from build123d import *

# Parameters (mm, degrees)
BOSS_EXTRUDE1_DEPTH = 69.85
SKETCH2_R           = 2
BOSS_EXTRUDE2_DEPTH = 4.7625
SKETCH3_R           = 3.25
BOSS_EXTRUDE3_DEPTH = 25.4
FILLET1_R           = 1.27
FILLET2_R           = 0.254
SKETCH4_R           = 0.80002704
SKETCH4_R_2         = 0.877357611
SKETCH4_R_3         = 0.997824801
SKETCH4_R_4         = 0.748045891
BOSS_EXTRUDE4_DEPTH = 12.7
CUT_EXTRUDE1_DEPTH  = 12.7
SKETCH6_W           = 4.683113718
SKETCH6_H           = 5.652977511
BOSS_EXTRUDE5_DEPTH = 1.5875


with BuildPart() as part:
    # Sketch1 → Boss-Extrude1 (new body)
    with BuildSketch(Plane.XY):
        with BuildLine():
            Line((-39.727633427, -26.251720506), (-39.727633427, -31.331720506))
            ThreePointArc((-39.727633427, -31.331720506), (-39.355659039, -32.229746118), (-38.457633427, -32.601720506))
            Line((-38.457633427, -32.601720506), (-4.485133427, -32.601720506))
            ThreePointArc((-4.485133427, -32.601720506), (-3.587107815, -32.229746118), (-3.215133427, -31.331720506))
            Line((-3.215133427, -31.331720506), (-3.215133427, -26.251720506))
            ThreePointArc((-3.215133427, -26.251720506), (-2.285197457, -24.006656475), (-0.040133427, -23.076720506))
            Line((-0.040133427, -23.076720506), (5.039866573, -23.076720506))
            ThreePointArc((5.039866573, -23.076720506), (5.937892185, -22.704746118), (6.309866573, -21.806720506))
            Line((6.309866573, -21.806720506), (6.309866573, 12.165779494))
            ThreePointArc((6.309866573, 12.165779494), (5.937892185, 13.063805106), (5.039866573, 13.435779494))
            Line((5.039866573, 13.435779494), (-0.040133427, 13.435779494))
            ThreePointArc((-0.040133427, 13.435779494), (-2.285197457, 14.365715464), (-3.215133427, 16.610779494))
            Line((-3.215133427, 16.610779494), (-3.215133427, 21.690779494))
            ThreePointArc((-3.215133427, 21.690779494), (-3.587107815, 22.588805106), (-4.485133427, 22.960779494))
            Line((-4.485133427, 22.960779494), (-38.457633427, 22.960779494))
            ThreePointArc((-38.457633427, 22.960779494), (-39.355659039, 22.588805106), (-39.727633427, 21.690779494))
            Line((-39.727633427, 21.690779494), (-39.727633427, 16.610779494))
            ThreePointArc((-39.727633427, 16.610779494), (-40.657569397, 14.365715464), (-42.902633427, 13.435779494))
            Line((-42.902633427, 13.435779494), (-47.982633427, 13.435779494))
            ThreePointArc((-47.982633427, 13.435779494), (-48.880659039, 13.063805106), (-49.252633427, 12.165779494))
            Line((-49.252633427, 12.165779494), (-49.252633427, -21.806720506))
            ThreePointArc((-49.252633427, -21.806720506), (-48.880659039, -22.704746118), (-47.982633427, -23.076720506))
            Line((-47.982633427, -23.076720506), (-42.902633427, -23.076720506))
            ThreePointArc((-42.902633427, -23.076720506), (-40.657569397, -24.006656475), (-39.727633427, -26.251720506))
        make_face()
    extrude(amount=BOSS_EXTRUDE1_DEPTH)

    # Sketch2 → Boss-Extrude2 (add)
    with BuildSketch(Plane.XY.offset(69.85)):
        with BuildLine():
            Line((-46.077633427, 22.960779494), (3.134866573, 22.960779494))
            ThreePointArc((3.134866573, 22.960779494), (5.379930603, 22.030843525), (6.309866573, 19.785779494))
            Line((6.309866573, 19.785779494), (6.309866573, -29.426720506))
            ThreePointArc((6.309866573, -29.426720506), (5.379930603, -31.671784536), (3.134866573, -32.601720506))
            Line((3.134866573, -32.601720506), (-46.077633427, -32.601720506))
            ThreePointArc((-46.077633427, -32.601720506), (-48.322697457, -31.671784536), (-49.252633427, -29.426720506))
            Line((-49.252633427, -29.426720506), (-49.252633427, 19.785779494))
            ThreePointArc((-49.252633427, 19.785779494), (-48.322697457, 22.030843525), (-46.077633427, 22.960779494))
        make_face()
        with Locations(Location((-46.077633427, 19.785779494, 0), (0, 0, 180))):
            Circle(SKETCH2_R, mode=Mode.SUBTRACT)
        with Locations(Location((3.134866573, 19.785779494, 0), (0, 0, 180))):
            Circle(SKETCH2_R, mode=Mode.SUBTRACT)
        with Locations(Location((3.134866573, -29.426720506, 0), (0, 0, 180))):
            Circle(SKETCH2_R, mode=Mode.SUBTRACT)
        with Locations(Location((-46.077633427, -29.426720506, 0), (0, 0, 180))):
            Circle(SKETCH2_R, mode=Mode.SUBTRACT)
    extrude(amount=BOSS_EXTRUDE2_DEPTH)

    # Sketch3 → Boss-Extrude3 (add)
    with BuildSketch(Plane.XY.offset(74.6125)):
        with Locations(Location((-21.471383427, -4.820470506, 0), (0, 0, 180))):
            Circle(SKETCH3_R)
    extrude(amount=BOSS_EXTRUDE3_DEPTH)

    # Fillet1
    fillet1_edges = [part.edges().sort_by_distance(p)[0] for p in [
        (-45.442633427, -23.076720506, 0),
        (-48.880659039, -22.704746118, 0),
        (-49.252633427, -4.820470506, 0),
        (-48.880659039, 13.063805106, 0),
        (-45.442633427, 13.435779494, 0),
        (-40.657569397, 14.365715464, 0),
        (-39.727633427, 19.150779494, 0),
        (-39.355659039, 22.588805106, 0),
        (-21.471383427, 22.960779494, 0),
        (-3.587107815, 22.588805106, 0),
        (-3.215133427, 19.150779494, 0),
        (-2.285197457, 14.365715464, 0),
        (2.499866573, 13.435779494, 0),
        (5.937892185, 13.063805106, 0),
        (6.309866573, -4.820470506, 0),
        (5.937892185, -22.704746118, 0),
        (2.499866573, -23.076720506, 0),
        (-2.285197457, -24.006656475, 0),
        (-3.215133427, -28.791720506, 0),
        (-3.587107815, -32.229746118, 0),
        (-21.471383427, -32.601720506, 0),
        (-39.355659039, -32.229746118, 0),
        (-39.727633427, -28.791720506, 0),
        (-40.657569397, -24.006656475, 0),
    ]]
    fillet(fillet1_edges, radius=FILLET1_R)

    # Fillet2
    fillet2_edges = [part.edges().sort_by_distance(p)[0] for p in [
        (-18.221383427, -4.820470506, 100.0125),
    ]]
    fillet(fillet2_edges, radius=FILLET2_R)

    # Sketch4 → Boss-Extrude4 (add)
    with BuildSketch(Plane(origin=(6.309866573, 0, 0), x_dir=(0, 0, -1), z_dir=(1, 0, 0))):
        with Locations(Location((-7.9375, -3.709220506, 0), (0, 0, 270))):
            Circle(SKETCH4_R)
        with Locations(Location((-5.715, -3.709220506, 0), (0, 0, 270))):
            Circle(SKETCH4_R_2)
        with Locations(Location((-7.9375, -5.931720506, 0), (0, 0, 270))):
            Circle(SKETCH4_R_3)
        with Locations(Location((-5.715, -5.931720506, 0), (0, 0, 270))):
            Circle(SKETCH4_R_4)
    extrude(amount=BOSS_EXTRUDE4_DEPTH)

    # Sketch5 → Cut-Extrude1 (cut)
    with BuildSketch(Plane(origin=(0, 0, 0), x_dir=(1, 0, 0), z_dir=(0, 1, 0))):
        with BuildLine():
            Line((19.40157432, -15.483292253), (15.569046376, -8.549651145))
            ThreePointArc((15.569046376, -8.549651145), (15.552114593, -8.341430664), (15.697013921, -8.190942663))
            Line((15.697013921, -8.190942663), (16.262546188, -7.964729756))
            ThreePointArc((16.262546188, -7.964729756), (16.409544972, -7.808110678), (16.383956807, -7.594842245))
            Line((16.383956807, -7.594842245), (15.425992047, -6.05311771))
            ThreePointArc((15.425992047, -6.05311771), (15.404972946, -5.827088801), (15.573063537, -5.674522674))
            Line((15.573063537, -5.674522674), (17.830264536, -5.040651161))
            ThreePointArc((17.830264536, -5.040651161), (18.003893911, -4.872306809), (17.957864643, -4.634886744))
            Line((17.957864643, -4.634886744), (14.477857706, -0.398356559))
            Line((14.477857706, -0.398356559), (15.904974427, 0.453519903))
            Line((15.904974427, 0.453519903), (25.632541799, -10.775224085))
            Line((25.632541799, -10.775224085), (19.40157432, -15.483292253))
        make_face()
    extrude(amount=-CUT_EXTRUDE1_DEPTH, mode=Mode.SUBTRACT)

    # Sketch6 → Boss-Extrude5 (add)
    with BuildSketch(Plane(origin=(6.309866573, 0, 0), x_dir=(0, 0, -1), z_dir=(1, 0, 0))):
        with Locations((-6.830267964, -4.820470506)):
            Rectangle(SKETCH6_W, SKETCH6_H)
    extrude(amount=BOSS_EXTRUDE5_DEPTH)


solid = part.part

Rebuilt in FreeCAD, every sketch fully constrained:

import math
import FreeCAD as App
import Part
import Sketcher

V = App.Vector
Q = App.Units.Quantity


def edges_at(feature, points):
    """Names of the edges that pass closest to the given points."""
    edges = feature.Shape.Edges
    near = lambda p: min(range(len(edges)), key=lambda i: edges[i].distToShape(Part.Vertex(*p))[0])
    return sorted({f"Edge{near(p) + 1}" for p in points})


def add_polygon(sketch, points):
    """Adds a closed chain of lines whose ends are joined by coincident constraints."""
    first, n = sketch.GeometryCount, len(points)
    for a, b in zip(points, points[1:] + points[:1]):
        sketch.addGeometry(Part.LineSegment(App.Vector(*a, 0), App.Vector(*b, 0)), False)
    for i in range(n):
        sketch.addConstraint(Sketcher.Constraint("Coincident", first + i, 2, first + (i + 1) % n, 1))

doc = App.newDocument("Part")
params = doc.addObject("Spreadsheet::Sheet", "Params")
for row, (alias, value) in enumerate([
    ("sketch1_radius", "0.05 in"),
    ("sketch1_width", "0.2 in"),
    ("sketch1_radius2", "0.125 in"),
    ("pad1_length", "2.75 in"),
    ("sketch2_radius", "0.125 in"),
    ("sketch2_width", "1.9375 in"),
    ("pad2_length", "0.1875 in"),
    ("pad3_length", "1 in"),
    ("fillet_radius", "0.05 in"),
    ("fillet2_radius", "0.01 in"),
    ("pad4_length", "0.5 in"),
    ("sketch5_radius", "0.01 in"),
    ("sketch5_radius2", "0.01 in"),
    ("sketch5_radius3", "0.01 in"),
    ("sketch5_radius4", "0.01 in"),
    ("pocket1_length", "0.5 in"),
    ("pad5_length", "0.0625 in"),
], start=1):
    params.set(f"A{row}", alias)
    params.set(f"B{row}", "=" + value)
    params.setAlias(f"B{row}", alias)

body = doc.addObject("PartDesign::Body", "Body")

sketch1 = body.newObject("Sketcher::SketchObject", "Sketch")
sketch1.AttachmentSupport = (doc.getObject("XY_Plane"), [""])
sketch1.MapMode = "FlatFace"
sketch1.addGeometry(Part.LineSegment(V(-39.7, -26.3, 0), V(-39.7, -31.3, 0)), False)
sketch1.addGeometry(Part.ArcOfCircle(Part.Circle(V(-38.5, -31.3, 0), V(0, 0, 1), 1.3), math.radians(180), math.radians(270)), False)
sketch1.addGeometry(Part.LineSegment(V(-38.5, -32.6, 0), V(-4.5, -32.6, 0)), False)
sketch1.addGeometry(Part.ArcOfCircle(Part.Circle(V(-4.5, -31.3, 0), V(0, 0, 1), 1.3), math.radians(-90), math.radians(0)), False)
sketch1.addGeometry(Part.LineSegment(V(-3.2, -31.3, 0), V(-3.2, -26.3, 0)), False)
sketch1.addGeometry(Part.ArcOfCircle(Part.Circle(V(0, -26.3, 0), V(0, 0, 1), 3.2), math.radians(90), math.radians(180)), False)
sketch1.addGeometry(Part.LineSegment(V(0, -23.1, 0), V(5, -23.1, 0)), False)
sketch1.addGeometry(Part.ArcOfCircle(Part.Circle(V(5, -21.8, 0), V(0, 0, 1), 1.3), math.radians(-90), math.radians(0)), False)
sketch1.addGeometry(Part.LineSegment(V(6.3, -21.8, 0), V(6.3, 12.2, 0)), False)
sketch1.addGeometry(Part.ArcOfCircle(Part.Circle(V(5, 12.2, 0), V(0, 0, 1), 1.3), math.radians(0), math.radians(90)), False)
sketch1.addGeometry(Part.LineSegment(V(5, 13.4, 0), V(0, 13.4, 0)), False)
sketch1.addGeometry(Part.ArcOfCircle(Part.Circle(V(0, 16.6, 0), V(0, 0, 1), 3.2), math.radians(-180), math.radians(-90)), False)
sketch1.addGeometry(Part.LineSegment(V(-3.2, 16.6, 0), V(-3.2, 21.7, 0)), False)
sketch1.addGeometry(Part.ArcOfCircle(Part.Circle(V(-4.5, 21.7, 0), V(0, 0, 1), 1.3), math.radians(0), math.radians(90)), False)
sketch1.addGeometry(Part.LineSegment(V(-4.5, 23, 0), V(-38.5, 23, 0)), False)
sketch1.addGeometry(Part.ArcOfCircle(Part.Circle(V(-38.5, 21.7, 0), V(0, 0, 1), 1.3), math.radians(90), math.radians(180)), False)
sketch1.addGeometry(Part.LineSegment(V(-39.7, 21.7, 0), V(-39.7, 16.6, 0)), False)
sketch1.addGeometry(Part.ArcOfCircle(Part.Circle(V(-42.9, 16.6, 0), V(0, 0, 1), 3.2), math.radians(-90), math.radians(0)), False)
sketch1.addGeometry(Part.LineSegment(V(-42.9, 13.4, 0), V(-48, 13.4, 0)), False)
sketch1.addGeometry(Part.ArcOfCircle(Part.Circle(V(-48, 12.2, 0), V(0, 0, 1), 1.3), math.radians(90), math.radians(180)), False)
sketch1.addGeometry(Part.LineSegment(V(-49.3, 12.2, 0), V(-49.3, -21.8, 0)), False)
sketch1.addGeometry(Part.ArcOfCircle(Part.Circle(V(-48, -21.8, 0), V(0, 0, 1), 1.3), math.radians(180), math.radians(270)), False)
sketch1.addGeometry(Part.LineSegment(V(-48, -23.1, 0), V(-42.9, -23.1, 0)), False)
sketch1.addGeometry(Part.ArcOfCircle(Part.Circle(V(-42.9, -26.3, 0), V(0, 0, 1), 3.2), math.radians(0), math.radians(90)), False)
sketch1.addConstraint(Sketcher.Constraint("Tangent", 0, 2, 1, 1))
sketch1.addConstraint(Sketcher.Constraint("Tangent", 1, 2, 2, 1))
sketch1.addConstraint(Sketcher.Constraint("Tangent", 2, 2, 3, 1))
sketch1.addConstraint(Sketcher.Constraint("Tangent", 3, 2, 4, 1))
sketch1.addConstraint(Sketcher.Constraint("Tangent", 4, 2, 5, 2))
sketch1.addConstraint(Sketcher.Constraint("Tangent", 5, 1, 6, 1))
sketch1.addConstraint(Sketcher.Constraint("Tangent", 6, 2, 7, 1))
sketch1.addConstraint(Sketcher.Constraint("Tangent", 7, 2, 8, 1))
sketch1.addConstraint(Sketcher.Constraint("Tangent", 8, 2, 9, 1))
sketch1.addConstraint(Sketcher.Constraint("Tangent", 9, 2, 10, 1))
sketch1.addConstraint(Sketcher.Constraint("Tangent", 10, 2, 11, 2))
sketch1.addConstraint(Sketcher.Constraint("Tangent", 11, 1, 12, 1))
sketch1.addConstraint(Sketcher.Constraint("Tangent", 12, 2, 13, 1))
sketch1.addConstraint(Sketcher.Constraint("Tangent", 13, 2, 14, 1))
sketch1.addConstraint(Sketcher.Constraint("Tangent", 14, 2, 15, 1))
sketch1.addConstraint(Sketcher.Constraint("Tangent", 15, 2, 16, 1))
sketch1.addConstraint(Sketcher.Constraint("Tangent", 16, 2, 17, 2))
sketch1.addConstraint(Sketcher.Constraint("Tangent", 17, 1, 18, 1))
sketch1.addConstraint(Sketcher.Constraint("Tangent", 18, 2, 19, 1))
sketch1.addConstraint(Sketcher.Constraint("Tangent", 19, 2, 20, 1))
sketch1.addConstraint(Sketcher.Constraint("Tangent", 20, 2, 21, 1))
sketch1.addConstraint(Sketcher.Constraint("Tangent", 21, 2, 22, 1))
sketch1.addConstraint(Sketcher.Constraint("Tangent", 22, 2, 23, 2))
sketch1.addConstraint(Sketcher.Constraint("Tangent", 23, 1, 0, 1))
sketch1.addConstraint(Sketcher.Constraint("Vertical", 0))
sketch1.addConstraint(Sketcher.Constraint("Horizontal", 2))
sketch1.addConstraint(Sketcher.Constraint("Vertical", 4))
sketch1.addConstraint(Sketcher.Constraint("Horizontal", 6))
sketch1.addConstraint(Sketcher.Constraint("Vertical", 8))
sketch1.addConstraint(Sketcher.Constraint("Horizontal", 10))
sketch1.addConstraint(Sketcher.Constraint("Vertical", 12))
sketch1.addConstraint(Sketcher.Constraint("Horizontal", 14))
sketch1.addConstraint(Sketcher.Constraint("Vertical", 16))
sketch1.addConstraint(Sketcher.Constraint("Horizontal", 18))
sketch1.addConstraint(Sketcher.Constraint("Vertical", 20))
sketch1.addConstraint(Sketcher.Constraint("Horizontal", 22))
sketch1.addConstraint(Sketcher.Constraint("Equal", 1, 3))
sketch1.addConstraint(Sketcher.Constraint("Equal", 3, 7))
sketch1.addConstraint(Sketcher.Constraint("Equal", 7, 9))
sketch1.addConstraint(Sketcher.Constraint("Equal", 5, 11))
sketch1.addConstraint(Sketcher.Constraint("Equal", 9, 13))
sketch1.addConstraint(Sketcher.Constraint("Equal", 13, 15))
sketch1.addConstraint(Sketcher.Constraint("Equal", 11, 17))
sketch1.addConstraint(Sketcher.Constraint("Equal", 15, 19))
sketch1.addConstraint(Sketcher.Constraint("Equal", 19, 21))
sketch1.addConstraint(Sketcher.Constraint("Equal", 17, 23))
sketch1.addConstraint(Sketcher.Constraint("Horizontal", 11, 3, 17, 3))
sketch1.addConstraint(Sketcher.Constraint("Horizontal", 7, 3, 21, 3))
sketch1.addConstraint(Sketcher.Constraint("Vertical", 5, 3, 11, 3))
sketch1.addConstraint(Sketcher.Constraint("Vertical", 1, 3, 15, 3))
sketch1.addConstraint(Sketcher.Constraint("Equal", 10, 18))
sketch1.addConstraint(Sketcher.Constraint("Equal", 22, 0))
sketch1.addConstraint(Sketcher.Constraint("Equal", 14, 8))
sketch1.addConstraint(Sketcher.Constraint("Equal", 4, 12))
sketch1.addConstraint(Sketcher.Constraint("Radius", 1, Q("0.05 in")))
sketch1.addConstraint(Sketcher.Constraint("DistanceX", 6, 1, 6, 2, Q("0.2 in")))
sketch1.addConstraint(Sketcher.Constraint("Radius", 5, Q("0.125 in")))
sketch1.addConstraint(Sketcher.Constraint("DistanceX", 2, 1, 2, 2, Q("1.3375 in")))
sketch1.addConstraint(Sketcher.Constraint("DistanceY", 1, 3, -1, 1, Q("31.331721 mm")))
sketch1.addConstraint(Sketcher.Constraint("DistanceX", 1, 3, -1, 1, Q("38.457633 mm")))
sketch1.setExpression("Constraints[54]", "Params.sketch1_radius")
sketch1.setExpression("Constraints[55]", "Params.sketch1_width")
sketch1.setExpression("Constraints[56]", "Params.sketch1_radius2")
pad1 = body.newObject("PartDesign::Pad", "Pad")
pad1.Profile = sketch1
pad1.setExpression("Length", "Params.pad1_length")

sketch2 = body.newObject("Sketcher::SketchObject", "Sketch001")
sketch2.AttachmentSupport = (doc.getObject("XY_Plane"), [""])
sketch2.MapMode = "FlatFace"
sketch2.AttachmentOffset = App.Placement(V(0, 0, 2.75 * 25.4), App.Rotation())
sketch2.addGeometry(Part.LineSegment(V(3.1, 23, 0), V(-46.1, 23, 0)), False)
sketch2.addGeometry(Part.ArcOfCircle(Part.Circle(V(-46.1, 19.8, 0), V(0, 0, 1), 3.2), math.radians(90), math.radians(180)), False)
sketch2.addGeometry(Part.LineSegment(V(-49.3, 19.8, 0), V(-49.3, -29.4, 0)), False)
sketch2.addGeometry(Part.ArcOfCircle(Part.Circle(V(-46.1, -29.4, 0), V(0, 0, 1), 3.2), math.radians(-180), math.radians(-90)), False)
sketch2.addGeometry(Part.LineSegment(V(-46.1, -32.6, 0), V(3.1, -32.6, 0)), False)
sketch2.addGeometry(Part.ArcOfCircle(Part.Circle(V(3.1, -29.4, 0), V(0, 0, 1), 3.2), math.radians(-90), math.radians(0)), False)
sketch2.addGeometry(Part.LineSegment(V(6.3, -29.4, 0), V(6.3, 19.8, 0)), False)
sketch2.addGeometry(Part.ArcOfCircle(Part.Circle(V(3.1, 19.8, 0), V(0, 0, 1), 3.2), math.radians(0), math.radians(90)), False)
sketch2.addGeometry(Part.Circle(V(3.1, -29.4, 0), V(0, 0, 1), 2), False)
sketch2.addGeometry(Part.Circle(V(-46.1, -29.4, 0), V(0, 0, 1), 2), False)
sketch2.addGeometry(Part.Circle(V(3.1, 19.8, 0), V(0, 0, 1), 2), False)
sketch2.addGeometry(Part.Circle(V(-46.1, 19.8, 0), V(0, 0, 1), 2), False)
sketch2.addConstraint(Sketcher.Constraint("Tangent", 0, 2, 1, 1))
sketch2.addConstraint(Sketcher.Constraint("Tangent", 1, 2, 2, 1))
sketch2.addConstraint(Sketcher.Constraint("Tangent", 2, 2, 3, 1))
sketch2.addConstraint(Sketcher.Constraint("Tangent", 3, 2, 4, 1))
sketch2.addConstraint(Sketcher.Constraint("Tangent", 4, 2, 5, 1))
sketch2.addConstraint(Sketcher.Constraint("Tangent", 5, 2, 6, 1))
sketch2.addConstraint(Sketcher.Constraint("Tangent", 6, 2, 7, 1))
sketch2.addConstraint(Sketcher.Constraint("Tangent", 7, 2, 0, 1))
sketch2.addConstraint(Sketcher.Constraint("Horizontal", 0))
sketch2.addConstraint(Sketcher.Constraint("Vertical", 2))
sketch2.addConstraint(Sketcher.Constraint("Horizontal", 4))
sketch2.addConstraint(Sketcher.Constraint("Vertical", 6))
sketch2.addConstraint(Sketcher.Constraint("Coincident", 8, 3, 5, 3))
sketch2.addConstraint(Sketcher.Constraint("Coincident", 9, 3, 3, 3))
sketch2.addConstraint(Sketcher.Constraint("Coincident", 10, 3, 7, 3))
sketch2.addConstraint(Sketcher.Constraint("Coincident", 11, 3, 1, 3))
sketch2.addConstraint(Sketcher.Constraint("Equal", 1, 3))
sketch2.addConstraint(Sketcher.Constraint("Equal", 3, 5))
sketch2.addConstraint(Sketcher.Constraint("Equal", 5, 7))
sketch2.addConstraint(Sketcher.Constraint("Equal", 8, 9))
sketch2.addConstraint(Sketcher.Constraint("Equal", 9, 10))
sketch2.addConstraint(Sketcher.Constraint("Equal", 10, 11))
sketch2.addConstraint(Sketcher.Constraint("Equal", 4, 2))
sketch2.addConstraint(Sketcher.Constraint("Radius", 1, Q("0.125 in")))
sketch2.addConstraint(Sketcher.Constraint("Diameter", 8, Q("4 mm")))
sketch2.addConstraint(Sketcher.Constraint("DistanceX", 0, 2, 0, 1, Q("1.9375 in")))
sketch2.addConstraint(Sketcher.Constraint("DistanceY", -1, 1, 1, 3, Q("19.785779 mm")))
sketch2.addConstraint(Sketcher.Constraint("DistanceX", 1, 3, -1, 1, Q("46.077633 mm")))
sketch2.setExpression("Constraints[23]", "Params.sketch2_radius")
sketch2.setExpression("Constraints[25]", "Params.sketch2_width")
pad2 = body.newObject("PartDesign::Pad", "Pad001")
pad2.Profile = sketch2
pad2.setExpression("Length", "Params.pad2_length")

sketch3 = body.newObject("Sketcher::SketchObject", "Sketch002")
sketch3.AttachmentSupport = (doc.getObject("XY_Plane"), [""])
sketch3.MapMode = "FlatFace"
sketch3.AttachmentOffset = App.Placement(V(0, 0, 2.9375 * 25.4), App.Rotation())
sketch3.addGeometry(Part.Circle(V(-21.5, -4.8, 0), V(0, 0, 1), 3.2), False)
sketch3.addConstraint(Sketcher.Constraint("Diameter", 0, Q("6.5 mm")))
sketch3.addConstraint(Sketcher.Constraint("DistanceY", 0, 3, -1, 1, Q("4.820471 mm")))
sketch3.addConstraint(Sketcher.Constraint("DistanceX", 0, 3, -1, 1, Q("21.471383 mm")))
pad3 = body.newObject("PartDesign::Pad", "Pad002")
pad3.Profile = sketch3
pad3.setExpression("Length", "Params.pad3_length")
doc.recompute()

fillet = body.newObject("PartDesign::Fillet", "Fillet")
fillet.Base = (pad3, edges_at(pad3, [
    (-45.443, -23.077, 0),
    (-48.881, -22.705, 0),
    (-49.253, -4.82, 0),
    (-48.881, 13.064, 0),
    (-45.443, 13.436, 0),
    (-40.658, 14.366, 0),
    (-39.728, 19.151, 0),
    (-39.356, 22.589, 0),
    (-21.471, 22.961, 0),
    (-3.587, 22.589, 0),
    (-3.215, 19.151, 0),
    (-2.285, 14.366, 0),
    (2.5, 13.436, 0),
    (5.938, 13.064, 0),
    (6.31, -4.82, 0),
    (5.938, -22.705, 0),
    (2.5, -23.077, 0),
    (-2.285, -24.007, 0),
    (-3.215, -28.792, 0),
    (-3.587, -32.23, 0),
    (-21.471, -32.602, 0),
    (-39.356, -32.23, 0),
    (-39.728, -28.792, 0),
    (-40.658, -24.007, 0),
]))
fillet.setExpression("Radius", "Params.fillet_radius")
doc.recompute()

fillet2 = body.newObject("PartDesign::Fillet", "Fillet001")
fillet2.Base = (fillet, edges_at(fillet, [(-18.221, -4.82, 100.013)]))
fillet2.setExpression("Radius", "Params.fillet2_radius")

sketch4 = body.newObject("Sketcher::SketchObject", "Sketch003")
sketch4.AttachmentSupport = (doc.getObject("YZ_Plane"), [""])
sketch4.MapMode = "FlatFace"
sketch4.AttachmentOffset = App.Placement(V(0, 0, 6.309867), App.Rotation())
sketch4.addGeometry(Part.Circle(V(-3.7, 7.9, 0), V(0, 0, 1), 0.8), False)
sketch4.addGeometry(Part.Circle(V(-3.7, 5.7, 0), V(0, 0, 1), 0.9), False)
sketch4.addGeometry(Part.Circle(V(-5.9, 7.9, 0), V(0, 0, 1), 1), False)
sketch4.addGeometry(Part.Circle(V(-5.9, 5.7, 0), V(0, 0, 1), 0.7), False)
sketch4.addConstraint(Sketcher.Constraint("Horizontal", 0, 3, 2, 3))
sketch4.addConstraint(Sketcher.Constraint("Horizontal", 1, 3, 3, 3))
sketch4.addConstraint(Sketcher.Constraint("Vertical", 0, 3, 1, 3))
sketch4.addConstraint(Sketcher.Constraint("Vertical", 2, 3, 3, 3))
sketch4.addConstraint(Sketcher.Constraint("Diameter", 2, Q("1.99565 mm")))
sketch4.addConstraint(Sketcher.Constraint("Diameter", 3, Q("1.496092 mm")))
sketch4.addConstraint(Sketcher.Constraint("DistanceY", -1, 1, 0, 3, Q("0.3125 in")))
sketch4.addConstraint(Sketcher.Constraint("DistanceY", -1, 1, 1, 3, Q("0.225 in")))
sketch4.addConstraint(Sketcher.Constraint("Diameter", 0, Q("1.600054 mm")))
sketch4.addConstraint(Sketcher.Constraint("Diameter", 1, Q("1.754715 mm")))
sketch4.addConstraint(Sketcher.Constraint("DistanceX", 2, 3, 0, 3, Q("0.0875 in")))
sketch4.addConstraint(Sketcher.Constraint("DistanceX", 0, 3, -1, 1, Q("3.709221 mm")))
pad4 = body.newObject("PartDesign::Pad", "Pad003")
pad4.Profile = sketch4
pad4.setExpression("Length", "Params.pad4_length")

sketch5 = body.newObject("Sketcher::SketchObject", "Sketch004")
sketch5.AttachmentSupport = (doc.getObject("XZ_Plane"), [""])
sketch5.MapMode = "FlatFace"
sketch5.addGeometry(Part.LineSegment(V(15.569046, 8.549651, 0), V(19.401574, 15.483292, 0)), False)
sketch5.addGeometry(Part.LineSegment(V(19.401574, 15.483292, 0), V(25.632542, 10.775224, 0)), False)
sketch5.addGeometry(Part.LineSegment(V(25.632542, 10.775224, 0), V(15.904974, -0.45352, 0)), False)
sketch5.addGeometry(Part.LineSegment(V(15.904974, -0.45352, 0), V(14.477858, 0.398357, 0)), False)
sketch5.addGeometry(Part.LineSegment(V(14.477858, 0.398357, 0), V(17.957865, 4.634887, 0)), False)
sketch5.addGeometry(Part.ArcOfCircle(Part.Circle(V(17.761592, 4.796111, 0), V(0, 0, 1), 0.254), math.radians(-39.400661), math.radians(74.314094)), False)
sketch5.addGeometry(Part.LineSegment(V(17.830265, 5.040651, 0), V(15.573064, 5.674523, 0)), False)
sketch5.addGeometry(Part.ArcOfCircle(Part.Circle(V(15.641736, 5.919063, 0), V(0, 0, 1), 0.254), math.radians(148.144868), math.radians(254.314094)), False)
sketch5.addGeometry(Part.LineSegment(V(15.425992, 6.053118, 0), V(16.383957, 7.594842, 0)), False)
sketch5.addGeometry(Part.ArcOfCircle(Part.Circle(V(16.168213, 7.728897, 0), V(0, 0, 1), 0.254), math.radians(-31.855132), math.radians(68.19859)), False)
sketch5.addGeometry(Part.LineSegment(V(16.262546, 7.96473, 0), V(15.697014, 8.190943, 0)), False)
sketch5.addGeometry(Part.ArcOfCircle(Part.Circle(V(15.791347, 8.426776, 0), V(0, 0, 1), 0.254), math.radians(151.068643), math.radians(248.198591)), False)
sketch5.addConstraint(Sketcher.Constraint("Coincident", 0, 2, 1, 1))
sketch5.addConstraint(Sketcher.Constraint("Coincident", 1, 2, 2, 1))
sketch5.addConstraint(Sketcher.Constraint("Coincident", 2, 2, 3, 1))
sketch5.addConstraint(Sketcher.Constraint("Coincident", 3, 2, 4, 1))
sketch5.addConstraint(Sketcher.Constraint("Coincident", 4, 2, 5, 1))
sketch5.addConstraint(Sketcher.Constraint("Coincident", 5, 2, 6, 1))
sketch5.addConstraint(Sketcher.Constraint("Coincident", 6, 2, 7, 2))
sketch5.addConstraint(Sketcher.Constraint("Coincident", 7, 1, 8, 1))
sketch5.addConstraint(Sketcher.Constraint("Coincident", 8, 2, 9, 1))
sketch5.addConstraint(Sketcher.Constraint("Coincident", 9, 2, 10, 1))
sketch5.addConstraint(Sketcher.Constraint("Coincident", 10, 2, 11, 2))
sketch5.addConstraint(Sketcher.Constraint("Coincident", 11, 1, 0, 1))
sketch5.addConstraint(Sketcher.Constraint("Radius", 5, Q("0.01 in")))
sketch5.addConstraint(Sketcher.Constraint("Radius", 7, Q("0.01 in")))
sketch5.addConstraint(Sketcher.Constraint("Radius", 9, Q("0.01 in")))
sketch5.addConstraint(Sketcher.Constraint("Radius", 11, Q("0.01 in")))
sketch5.addConstraint(Sketcher.Constraint("DistanceX", 5, 2, 4, 2, Q("0.1276 mm")))
sketch5.addConstraint(Sketcher.Constraint("DistanceX", 6, 2, 5, 2, Q("2.257201 mm")))
sketch5.addConstraint(Sketcher.Constraint("DistanceX", 11, 3, 9, 2, Q("0.471199 mm")))
sketch5.addConstraint(Sketcher.Constraint("DistanceX", 10, 2, 9, 3, Q("0.471199 mm")))
sketch5.addConstraint(Sketcher.Constraint("DistanceY", 8, 2, 10, 2, Q("0.5961 mm")))
sketch5.addConstraint(Sketcher.Constraint("DistanceX", 11, 1, 11, 3, Q("0.222301 mm")))
sketch5.addConstraint(Sketcher.Constraint("Distance", 0, Q("7.922351 mm")))
sketch5.addConstraint(Sketcher.Constraint("Distance", 2, Q("14.85632 mm")))
sketch5.addConstraint(Sketcher.Constraint("DistanceY", -1, 1, 5, 3, Q("4.796111 mm")))
sketch5.addConstraint(Sketcher.Constraint("DistanceX", -1, 1, 1, 2, Q("25.632542 mm")))
sketch5.addConstraint(Sketcher.Constraint("DistanceY", 2, 2, -1, 1, Q("0.45352 mm")))
sketch5.addConstraint(Sketcher.Constraint("DistanceY", -1, 1, 5, 2, Q("5.040651 mm")))
sketch5.addConstraint(Sketcher.Constraint("DistanceY", -1, 1, 9, 2, Q("7.96473 mm")))
sketch5.addConstraint(Sketcher.Constraint("DistanceY", -1, 1, 11, 1, Q("8.549651 mm")))
sketch5.addConstraint(Sketcher.Constraint("DistanceX", 9, 3, 5, 3, Q("1.593379 mm")))
sketch5.addConstraint(Sketcher.Constraint("DistanceY", 9, 3, 11, 3, Q("0.697879 mm")))
sketch5.addConstraint(Sketcher.Constraint("DistanceX", 7, 3, 11, 3, Q("0.149611 mm")))
sketch5.addConstraint(Sketcher.Constraint("DistanceX", 9, 3, 0, 2, Q("3.233361 mm")))
sketch5.addConstraint(Sketcher.Constraint("DistanceY", 7, 3, 0, 2, Q("9.564229 mm")))
sketch5.addConstraint(Sketcher.Constraint("DistanceY", 1, 2, 0, 2, Q("4.708068 mm")))
sketch5.addConstraint(Sketcher.Constraint("DistanceX", 5, 3, 1, 2, Q("7.87095 mm")))
sketch5.addConstraint(Sketcher.Constraint("DistanceX", 3, 2, 7, 3, Q("1.163878 mm")))
sketch5.addConstraint(Sketcher.Constraint("DistanceY", 3, 2, 9, 3, Q("7.33054 mm")))
sketch5.addConstraint(Sketcher.Constraint("DistanceX", 7, 1, 6, 2, Q("0.147071 mm")))
sketch5.setExpression("Constraints[12]", "Params.sketch5_radius")
sketch5.setExpression("Constraints[13]", "Params.sketch5_radius2")
sketch5.setExpression("Constraints[14]", "Params.sketch5_radius3")
sketch5.setExpression("Constraints[15]", "Params.sketch5_radius4")
pocket1 = body.newObject("PartDesign::Pocket", "Pocket")
pocket1.Profile = sketch5
pocket1.setExpression("Length", "Params.pocket1_length")
pocket1.Reversed = True

sketch6 = body.newObject("Sketcher::SketchObject", "Sketch005")
sketch6.AttachmentSupport = (doc.getObject("YZ_Plane"), [""])
sketch6.MapMode = "FlatFace"
sketch6.AttachmentOffset = App.Placement(V(0, 0, 6.309867), App.Rotation())
add_polygon(sketch6, [(-2, 9.2), (-7.6, 9.2), (-7.6, 4.5), (-2, 4.5)])
sketch6.addConstraint(Sketcher.Constraint("Horizontal", 0))
sketch6.addConstraint(Sketcher.Constraint("Vertical", 1))
sketch6.addConstraint(Sketcher.Constraint("Horizontal", 2))
sketch6.addConstraint(Sketcher.Constraint("Vertical", 3))
sketch6.addConstraint(Sketcher.Constraint("DistanceX", 0, 2, 0, 1, Q("5.652978 mm")))
sketch6.addConstraint(Sketcher.Constraint("DistanceY", 1, 2, 1, 1, Q("4.683114 mm")))
sketch6.addConstraint(Sketcher.Constraint("DistanceX", 0, 2, -1, 1, Q("7.646959 mm")))
sketch6.addConstraint(Sketcher.Constraint("DistanceY", -1, 1, 1, 2, Q("4.488711 mm")))
pad5 = body.newObject("PartDesign::Pad", "Pad004")
pad5.Profile = sketch6
pad5.setExpression("Length", "Params.pad5_length")

doc.recompute()
